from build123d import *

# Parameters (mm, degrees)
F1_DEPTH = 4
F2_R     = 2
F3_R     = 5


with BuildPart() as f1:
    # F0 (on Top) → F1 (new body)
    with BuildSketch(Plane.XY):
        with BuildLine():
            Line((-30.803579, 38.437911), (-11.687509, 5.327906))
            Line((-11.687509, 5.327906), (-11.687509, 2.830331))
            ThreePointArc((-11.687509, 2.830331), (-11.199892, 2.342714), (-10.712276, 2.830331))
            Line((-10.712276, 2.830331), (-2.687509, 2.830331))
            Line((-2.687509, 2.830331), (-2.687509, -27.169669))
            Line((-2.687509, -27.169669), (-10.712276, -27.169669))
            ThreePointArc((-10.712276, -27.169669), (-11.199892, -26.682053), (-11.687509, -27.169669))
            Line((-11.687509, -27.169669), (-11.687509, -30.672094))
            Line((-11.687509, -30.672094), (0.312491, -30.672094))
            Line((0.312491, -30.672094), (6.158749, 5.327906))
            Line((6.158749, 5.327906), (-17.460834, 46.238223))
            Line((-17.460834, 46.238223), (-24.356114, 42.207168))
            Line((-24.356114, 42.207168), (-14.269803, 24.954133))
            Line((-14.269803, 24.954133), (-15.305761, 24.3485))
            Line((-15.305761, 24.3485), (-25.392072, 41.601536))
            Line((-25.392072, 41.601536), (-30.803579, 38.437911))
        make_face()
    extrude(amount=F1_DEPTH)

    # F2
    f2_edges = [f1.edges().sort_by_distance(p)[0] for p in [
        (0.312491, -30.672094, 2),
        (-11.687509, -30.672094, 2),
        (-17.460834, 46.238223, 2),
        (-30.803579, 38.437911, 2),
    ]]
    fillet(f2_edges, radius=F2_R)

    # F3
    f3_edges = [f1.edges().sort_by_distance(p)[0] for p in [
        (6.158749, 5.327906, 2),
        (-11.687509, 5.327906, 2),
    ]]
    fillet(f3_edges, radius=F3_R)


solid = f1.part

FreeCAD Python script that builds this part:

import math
import FreeCAD as App
import Part
import Sketcher

V = App.Vector
Q = App.Units.Quantity


def edges_at(feature, points):
    """Names of the edges that pass closest to the given points."""
    edges = feature.Shape.Edges
    near = lambda p: min(range(len(edges)), key=lambda i: edges[i].distToShape(Part.Vertex(*p))[0])
    return sorted({f"Edge{near(p) + 1}" for p in points})

doc = App.newDocument("Part")
params = doc.addObject("Spreadsheet::Sheet", "Params")
for row, (alias, value) in enumerate([
    ("sketch1_width", "12 mm"),
    ("sketch1_height", "30 mm"),
    ("sketch1_length", "1.2 mm"),
    ("pad1_length", "4 mm"),
    ("fillet_radius", "2 mm"),
    ("fillet2_radius", "5 mm"),
], start=1):
    params.set(f"A{row}", alias)
    params.set(f"B{row}", "=" + value)
    params.setAlias(f"B{row}", alias)

body = doc.addObject("PartDesign::Body", "Body")

sketch1 = body.newObject("Sketcher::SketchObject", "Sketch")
sketch1.AttachmentSupport = (doc.getObject("XY_Plane"), [""])
sketch1.MapMode = "FlatFace"
sketch1.addGeometry(Part.LineSegment(V(-30.8, 38.44, 0), V(-11.69, 5.33, 0)), False)
sketch1.addGeometry(Part.LineSegment(V(-11.69, 5.33, 0), V(-11.69, 2.83, 0)), False)
sketch1.addGeometry(Part.ArcOfCircle(Part.Circle(V(-11.2, 2.83, 0), V(0, 0, 1), 0.49), math.radians(180), math.radians(360)), False)
sketch1.addGeometry(Part.LineSegment(V(-10.71, 2.83, 0), V(-2.69, 2.83, 0)), False)
sketch1.addGeometry(Part.LineSegment(V(-2.69, 2.83, 0), V(-2.69, -27.17, 0)), False)
sketch1.addGeometry(Part.LineSegment(V(-2.69, -27.17, 0), V(-10.71, -27.17, 0)), False)
sketch1.addGeometry(Part.ArcOfCircle(Part.Circle(V(-11.2, -27.17, 0), V(0, 0, 1), 0.49), math.radians(0), math.radians(180)), False)
sketch1.addGeometry(Part.LineSegment(V(-11.69, -27.17, 0), V(-11.69, -30.67, 0)), False)
sketch1.addGeometry(Part.LineSegment(V(-11.69, -30.67, 0), V(0.31, -30.67, 0)), False)
sketch1.addGeometry(Part.LineSegment(V(0.31, -30.67, 0), V(6.16, 5.33, 0)), False)
sketch1.addGeometry(Part.LineSegment(V(6.16, 5.33, 0), V(-17.46, 46.24, 0)), False)
sketch1.addGeometry(Part.LineSegment(V(-17.46, 46.24, 0), V(-24.36, 42.21, 0)), False)
sketch1.addGeometry(Part.LineSegment(V(-24.36, 42.21, 0), V(-14.27, 24.95, 0)), False)
sketch1.addGeometry(Part.LineSegment(V(-14.27, 24.95, 0), V(-15.31, 24.35, 0)), False)
sketch1.addGeometry(Part.LineSegment(V(-15.31, 24.35, 0), V(-25.39, 41.6, 0)), False)
sketch1.addGeometry(Part.LineSegment(V(-25.39, 41.6, 0), V(-30.8, 38.44, 0)), False)
sketch1.addConstraint(Sketcher.Constraint("Coincident", 0, 2, 1, 1))
sketch1.addConstraint(Sketcher.Constraint("Tangent", 1, 2, 2, 1))
sketch1.addConstraint(Sketcher.Constraint("Coincident", 2, 2, 3, 1))
sketch1.addConstraint(Sketcher.Constraint("Coincident", 3, 2, 4, 1))
sketch1.addConstraint(Sketcher.Constraint("Coincident", 4, 2, 5, 1))
sketch1.addConstraint(Sketcher.Constraint("Coincident", 5, 2, 6, 1))
sketch1.addConstraint(Sketcher.Constraint("Tangent", 6, 2, 7, 1))
sketch1.addConstraint(Sketcher.Constraint("Coincident", 7, 2, 8, 1))
sketch1.addConstraint(Sketcher.Constraint("Coincident", 8, 2, 9, 1))
sketch1.addConstraint(Sketcher.Constraint("Coincident", 9, 2, 10, 1))
sketch1.addConstraint(Sketcher.Constraint("Coincident", 10, 2, 11, 1))
sketch1.addConstraint(Sketcher.Constraint("Coincident", 11, 2, 12, 1))
sketch1.addConstraint(Sketcher.Constraint("Coincident", 12, 2, 13, 1))
sketch1.addConstraint(Sketcher.Constraint("Coincident", 13, 2, 14, 1))
sketch1.addConstraint(Sketcher.Constraint("Coincident", 14, 2, 15, 1))
sketch1.addConstraint(Sketcher.Constraint("Coincident", 15, 2, 0, 1))
sketch1.addConstraint(Sketcher.Constraint("Vertical", 1))
sketch1.addConstraint(Sketcher.Constraint("Horizontal", 3))
sketch1.addConstraint(Sketcher.Constraint("Vertical", 4))
sketch1.addConstraint(Sketcher.Constraint("Horizontal", 5))
sketch1.addConstraint(Sketcher.Constraint("Vertical", 7))
sketch1.addConstraint(Sketcher.Constraint("Horizontal", 8))
sketch1.addConstraint(Sketcher.Constraint("Equal", 2, 6))
sketch1.addConstraint(Sketcher.Constraint("Parallel", 0, 10))
sketch1.addConstraint(Sketcher.Constraint("Perpendicular", 11, 12))
sketch1.addConstraint(Sketcher.Constraint("Perpendicular", 12, 13))
sketch1.addConstraint(Sketcher.Constraint("Perpendicular", 13, 14))
sketch1.addConstraint(Sketcher.Constraint("Perpendicular", 14, 15))
sketch1.addConstraint(Sketcher.Constraint("Horizontal", 1, 2, 2, 2))
sketch1.addConstraint(Sketcher.Constraint("Horizontal", 6, 3, 4, 2))
sketch1.addConstraint(Sketcher.Constraint("Horizontal", 0, 2, 9, 2))
sketch1.addConstraint(Sketcher.Constraint("Vertical", 2, 3, 6, 3))
sketch1.addConstraint(Sketcher.Constraint("Equal", 12, 14))
sketch1.addConstraint(Sketcher.Constraint("DistanceX", 8, 1, 8, 2, Q("12 mm")))
sketch1.addConstraint(Sketcher.Constraint("DistanceY", 4, 2, 4, 1, Q("30 mm")))
sketch1.addConstraint(Sketcher.Constraint("Angle", 0, Q("-60 deg")))
sketch1.addConstraint(Sketcher.Constraint("DistanceX", 1, 2, 3, 2, Q("9 mm")))
sketch1.addConstraint(Sketcher.Constraint("Distance", 13, Q("1.2 mm")))
sketch1.addConstraint(Sketcher.Constraint("Radius", 2, Q("0.487617 mm")))
sketch1.addConstraint(Sketcher.Constraint("DistanceY", -1, 1, 13, 2, Q("24.3485 mm")))
sketch1.addConstraint(Sketcher.Constraint("DistanceY", 1, 2, 12, 2, Q("22.123802 mm")))
sketch1.addConstraint(Sketcher.Constraint("Distance", 0, Q("38.23214 mm")))
sketch1.addConstraint(Sketcher.Constraint("DistanceY", 1, 2, 1, 1, Q("2.497575 mm")))
sketch1.addConstraint(Sketcher.Constraint("DistanceY", 7, 2, 7, 1, Q("3.502425 mm")))
sketch1.addConstraint(Sketcher.Constraint("DistanceY", -1, 1, 2, 3, Q("2.830331 mm")))
sketch1.addConstraint(Sketcher.Constraint("DistanceX", 0, 2, -1, 1, Q("11.687509 mm")))
sketch1.addConstraint(Sketcher.Constraint("DistanceX", -1, 1, 9, 2, Q("6.158749 mm")))
sketch1.addConstraint(Sketcher.Constraint("DistanceY", -1, 1, 11, 2, Q("42.207168 mm")))
sketch1.setExpression("Constraints[33]", "Params.sketch1_width")
sketch1.setExpression("Constraints[34]", "Params.sketch1_height")
sketch1.setExpression("Constraints[37]", "Params.sketch1_length")
pad1 = body.newObject("PartDesign::Pad", "Pad")
pad1.Profile = sketch1
pad1.setExpression("Length", "Params.pad1_length")
doc.recompute()

fillet = body.newObject("PartDesign::Fillet", "Fillet")
fillet.Base = (pad1, edges_at(pad1, [
    (0.312, -30.672, 2),
    (-11.688, -30.672, 2),
    (-17.461, 46.238, 2),
    (-30.804, 38.438, 2),
]))
fillet.setExpression("Radius", "Params.fillet_radius")
doc.recompute()

fillet2 = body.newObject("PartDesign::Fillet", "Fillet001")
fillet2.Base = (fillet, edges_at(fillet, [(6.159, 5.328, 2), (-11.688, 5.328, 2)]))
fillet2.setExpression("Radius", "Params.fillet2_radius")

doc.recompute()
